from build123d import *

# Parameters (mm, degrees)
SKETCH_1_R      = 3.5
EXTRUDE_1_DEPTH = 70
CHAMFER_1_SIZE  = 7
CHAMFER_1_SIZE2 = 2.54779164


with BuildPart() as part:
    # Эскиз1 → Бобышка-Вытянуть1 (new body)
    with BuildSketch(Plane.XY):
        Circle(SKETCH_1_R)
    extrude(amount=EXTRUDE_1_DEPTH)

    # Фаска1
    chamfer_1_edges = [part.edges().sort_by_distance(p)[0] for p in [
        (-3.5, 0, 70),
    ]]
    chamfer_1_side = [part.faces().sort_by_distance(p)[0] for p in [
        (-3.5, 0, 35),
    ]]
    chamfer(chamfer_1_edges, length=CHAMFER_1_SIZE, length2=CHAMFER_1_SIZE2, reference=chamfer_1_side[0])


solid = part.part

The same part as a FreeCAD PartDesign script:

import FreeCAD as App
import Part
import Sketcher


def edges_at(feature, points):
    """Names of the edges that pass closest to the given points."""
    edges = feature.Shape.Edges
    near = lambda p: min(range(len(edges)), key=lambda i: edges[i].distToShape(Part.Vertex(*p))[0])
    return sorted({f"Edge{near(p) + 1}" for p in points})

doc = App.newDocument("Part")
body = doc.addObject("PartDesign::Body", "Body")

# Sketch on XY plane
sketch1 = body.newObject("Sketcher::SketchObject", "Sketch")
sketch1.AttachmentSupport = (doc.getObject("XY_Plane"), [""])
sketch1.MapMode = "FlatFace"
sketch1.addGeometry(Part.Circle(App.Vector(0, 0, 0), App.Vector(0, 0, 1), 3.5), False)
sketch1.addConstraint(Sketcher.Constraint("Coincident", 0, 3, -1, 1))
sketch1.addConstraint(Sketcher.Constraint("Diameter", 0, 7.0))
pad1 = body.newObject("PartDesign::Pad", "Pad")
pad1.Profile = sketch1
pad1.Length = 70
doc.recompute()

chamfer = body.newObject("PartDesign::Chamfer", "Chamfer")
chamfer.Base = (pad1, edges_at(pad1, [(-3.5, 0, 70)]))
chamfer.ChamferType = "Two distances"
chamfer.Size = 7
chamfer.Size2 = 2.547792

doc.recompute()
